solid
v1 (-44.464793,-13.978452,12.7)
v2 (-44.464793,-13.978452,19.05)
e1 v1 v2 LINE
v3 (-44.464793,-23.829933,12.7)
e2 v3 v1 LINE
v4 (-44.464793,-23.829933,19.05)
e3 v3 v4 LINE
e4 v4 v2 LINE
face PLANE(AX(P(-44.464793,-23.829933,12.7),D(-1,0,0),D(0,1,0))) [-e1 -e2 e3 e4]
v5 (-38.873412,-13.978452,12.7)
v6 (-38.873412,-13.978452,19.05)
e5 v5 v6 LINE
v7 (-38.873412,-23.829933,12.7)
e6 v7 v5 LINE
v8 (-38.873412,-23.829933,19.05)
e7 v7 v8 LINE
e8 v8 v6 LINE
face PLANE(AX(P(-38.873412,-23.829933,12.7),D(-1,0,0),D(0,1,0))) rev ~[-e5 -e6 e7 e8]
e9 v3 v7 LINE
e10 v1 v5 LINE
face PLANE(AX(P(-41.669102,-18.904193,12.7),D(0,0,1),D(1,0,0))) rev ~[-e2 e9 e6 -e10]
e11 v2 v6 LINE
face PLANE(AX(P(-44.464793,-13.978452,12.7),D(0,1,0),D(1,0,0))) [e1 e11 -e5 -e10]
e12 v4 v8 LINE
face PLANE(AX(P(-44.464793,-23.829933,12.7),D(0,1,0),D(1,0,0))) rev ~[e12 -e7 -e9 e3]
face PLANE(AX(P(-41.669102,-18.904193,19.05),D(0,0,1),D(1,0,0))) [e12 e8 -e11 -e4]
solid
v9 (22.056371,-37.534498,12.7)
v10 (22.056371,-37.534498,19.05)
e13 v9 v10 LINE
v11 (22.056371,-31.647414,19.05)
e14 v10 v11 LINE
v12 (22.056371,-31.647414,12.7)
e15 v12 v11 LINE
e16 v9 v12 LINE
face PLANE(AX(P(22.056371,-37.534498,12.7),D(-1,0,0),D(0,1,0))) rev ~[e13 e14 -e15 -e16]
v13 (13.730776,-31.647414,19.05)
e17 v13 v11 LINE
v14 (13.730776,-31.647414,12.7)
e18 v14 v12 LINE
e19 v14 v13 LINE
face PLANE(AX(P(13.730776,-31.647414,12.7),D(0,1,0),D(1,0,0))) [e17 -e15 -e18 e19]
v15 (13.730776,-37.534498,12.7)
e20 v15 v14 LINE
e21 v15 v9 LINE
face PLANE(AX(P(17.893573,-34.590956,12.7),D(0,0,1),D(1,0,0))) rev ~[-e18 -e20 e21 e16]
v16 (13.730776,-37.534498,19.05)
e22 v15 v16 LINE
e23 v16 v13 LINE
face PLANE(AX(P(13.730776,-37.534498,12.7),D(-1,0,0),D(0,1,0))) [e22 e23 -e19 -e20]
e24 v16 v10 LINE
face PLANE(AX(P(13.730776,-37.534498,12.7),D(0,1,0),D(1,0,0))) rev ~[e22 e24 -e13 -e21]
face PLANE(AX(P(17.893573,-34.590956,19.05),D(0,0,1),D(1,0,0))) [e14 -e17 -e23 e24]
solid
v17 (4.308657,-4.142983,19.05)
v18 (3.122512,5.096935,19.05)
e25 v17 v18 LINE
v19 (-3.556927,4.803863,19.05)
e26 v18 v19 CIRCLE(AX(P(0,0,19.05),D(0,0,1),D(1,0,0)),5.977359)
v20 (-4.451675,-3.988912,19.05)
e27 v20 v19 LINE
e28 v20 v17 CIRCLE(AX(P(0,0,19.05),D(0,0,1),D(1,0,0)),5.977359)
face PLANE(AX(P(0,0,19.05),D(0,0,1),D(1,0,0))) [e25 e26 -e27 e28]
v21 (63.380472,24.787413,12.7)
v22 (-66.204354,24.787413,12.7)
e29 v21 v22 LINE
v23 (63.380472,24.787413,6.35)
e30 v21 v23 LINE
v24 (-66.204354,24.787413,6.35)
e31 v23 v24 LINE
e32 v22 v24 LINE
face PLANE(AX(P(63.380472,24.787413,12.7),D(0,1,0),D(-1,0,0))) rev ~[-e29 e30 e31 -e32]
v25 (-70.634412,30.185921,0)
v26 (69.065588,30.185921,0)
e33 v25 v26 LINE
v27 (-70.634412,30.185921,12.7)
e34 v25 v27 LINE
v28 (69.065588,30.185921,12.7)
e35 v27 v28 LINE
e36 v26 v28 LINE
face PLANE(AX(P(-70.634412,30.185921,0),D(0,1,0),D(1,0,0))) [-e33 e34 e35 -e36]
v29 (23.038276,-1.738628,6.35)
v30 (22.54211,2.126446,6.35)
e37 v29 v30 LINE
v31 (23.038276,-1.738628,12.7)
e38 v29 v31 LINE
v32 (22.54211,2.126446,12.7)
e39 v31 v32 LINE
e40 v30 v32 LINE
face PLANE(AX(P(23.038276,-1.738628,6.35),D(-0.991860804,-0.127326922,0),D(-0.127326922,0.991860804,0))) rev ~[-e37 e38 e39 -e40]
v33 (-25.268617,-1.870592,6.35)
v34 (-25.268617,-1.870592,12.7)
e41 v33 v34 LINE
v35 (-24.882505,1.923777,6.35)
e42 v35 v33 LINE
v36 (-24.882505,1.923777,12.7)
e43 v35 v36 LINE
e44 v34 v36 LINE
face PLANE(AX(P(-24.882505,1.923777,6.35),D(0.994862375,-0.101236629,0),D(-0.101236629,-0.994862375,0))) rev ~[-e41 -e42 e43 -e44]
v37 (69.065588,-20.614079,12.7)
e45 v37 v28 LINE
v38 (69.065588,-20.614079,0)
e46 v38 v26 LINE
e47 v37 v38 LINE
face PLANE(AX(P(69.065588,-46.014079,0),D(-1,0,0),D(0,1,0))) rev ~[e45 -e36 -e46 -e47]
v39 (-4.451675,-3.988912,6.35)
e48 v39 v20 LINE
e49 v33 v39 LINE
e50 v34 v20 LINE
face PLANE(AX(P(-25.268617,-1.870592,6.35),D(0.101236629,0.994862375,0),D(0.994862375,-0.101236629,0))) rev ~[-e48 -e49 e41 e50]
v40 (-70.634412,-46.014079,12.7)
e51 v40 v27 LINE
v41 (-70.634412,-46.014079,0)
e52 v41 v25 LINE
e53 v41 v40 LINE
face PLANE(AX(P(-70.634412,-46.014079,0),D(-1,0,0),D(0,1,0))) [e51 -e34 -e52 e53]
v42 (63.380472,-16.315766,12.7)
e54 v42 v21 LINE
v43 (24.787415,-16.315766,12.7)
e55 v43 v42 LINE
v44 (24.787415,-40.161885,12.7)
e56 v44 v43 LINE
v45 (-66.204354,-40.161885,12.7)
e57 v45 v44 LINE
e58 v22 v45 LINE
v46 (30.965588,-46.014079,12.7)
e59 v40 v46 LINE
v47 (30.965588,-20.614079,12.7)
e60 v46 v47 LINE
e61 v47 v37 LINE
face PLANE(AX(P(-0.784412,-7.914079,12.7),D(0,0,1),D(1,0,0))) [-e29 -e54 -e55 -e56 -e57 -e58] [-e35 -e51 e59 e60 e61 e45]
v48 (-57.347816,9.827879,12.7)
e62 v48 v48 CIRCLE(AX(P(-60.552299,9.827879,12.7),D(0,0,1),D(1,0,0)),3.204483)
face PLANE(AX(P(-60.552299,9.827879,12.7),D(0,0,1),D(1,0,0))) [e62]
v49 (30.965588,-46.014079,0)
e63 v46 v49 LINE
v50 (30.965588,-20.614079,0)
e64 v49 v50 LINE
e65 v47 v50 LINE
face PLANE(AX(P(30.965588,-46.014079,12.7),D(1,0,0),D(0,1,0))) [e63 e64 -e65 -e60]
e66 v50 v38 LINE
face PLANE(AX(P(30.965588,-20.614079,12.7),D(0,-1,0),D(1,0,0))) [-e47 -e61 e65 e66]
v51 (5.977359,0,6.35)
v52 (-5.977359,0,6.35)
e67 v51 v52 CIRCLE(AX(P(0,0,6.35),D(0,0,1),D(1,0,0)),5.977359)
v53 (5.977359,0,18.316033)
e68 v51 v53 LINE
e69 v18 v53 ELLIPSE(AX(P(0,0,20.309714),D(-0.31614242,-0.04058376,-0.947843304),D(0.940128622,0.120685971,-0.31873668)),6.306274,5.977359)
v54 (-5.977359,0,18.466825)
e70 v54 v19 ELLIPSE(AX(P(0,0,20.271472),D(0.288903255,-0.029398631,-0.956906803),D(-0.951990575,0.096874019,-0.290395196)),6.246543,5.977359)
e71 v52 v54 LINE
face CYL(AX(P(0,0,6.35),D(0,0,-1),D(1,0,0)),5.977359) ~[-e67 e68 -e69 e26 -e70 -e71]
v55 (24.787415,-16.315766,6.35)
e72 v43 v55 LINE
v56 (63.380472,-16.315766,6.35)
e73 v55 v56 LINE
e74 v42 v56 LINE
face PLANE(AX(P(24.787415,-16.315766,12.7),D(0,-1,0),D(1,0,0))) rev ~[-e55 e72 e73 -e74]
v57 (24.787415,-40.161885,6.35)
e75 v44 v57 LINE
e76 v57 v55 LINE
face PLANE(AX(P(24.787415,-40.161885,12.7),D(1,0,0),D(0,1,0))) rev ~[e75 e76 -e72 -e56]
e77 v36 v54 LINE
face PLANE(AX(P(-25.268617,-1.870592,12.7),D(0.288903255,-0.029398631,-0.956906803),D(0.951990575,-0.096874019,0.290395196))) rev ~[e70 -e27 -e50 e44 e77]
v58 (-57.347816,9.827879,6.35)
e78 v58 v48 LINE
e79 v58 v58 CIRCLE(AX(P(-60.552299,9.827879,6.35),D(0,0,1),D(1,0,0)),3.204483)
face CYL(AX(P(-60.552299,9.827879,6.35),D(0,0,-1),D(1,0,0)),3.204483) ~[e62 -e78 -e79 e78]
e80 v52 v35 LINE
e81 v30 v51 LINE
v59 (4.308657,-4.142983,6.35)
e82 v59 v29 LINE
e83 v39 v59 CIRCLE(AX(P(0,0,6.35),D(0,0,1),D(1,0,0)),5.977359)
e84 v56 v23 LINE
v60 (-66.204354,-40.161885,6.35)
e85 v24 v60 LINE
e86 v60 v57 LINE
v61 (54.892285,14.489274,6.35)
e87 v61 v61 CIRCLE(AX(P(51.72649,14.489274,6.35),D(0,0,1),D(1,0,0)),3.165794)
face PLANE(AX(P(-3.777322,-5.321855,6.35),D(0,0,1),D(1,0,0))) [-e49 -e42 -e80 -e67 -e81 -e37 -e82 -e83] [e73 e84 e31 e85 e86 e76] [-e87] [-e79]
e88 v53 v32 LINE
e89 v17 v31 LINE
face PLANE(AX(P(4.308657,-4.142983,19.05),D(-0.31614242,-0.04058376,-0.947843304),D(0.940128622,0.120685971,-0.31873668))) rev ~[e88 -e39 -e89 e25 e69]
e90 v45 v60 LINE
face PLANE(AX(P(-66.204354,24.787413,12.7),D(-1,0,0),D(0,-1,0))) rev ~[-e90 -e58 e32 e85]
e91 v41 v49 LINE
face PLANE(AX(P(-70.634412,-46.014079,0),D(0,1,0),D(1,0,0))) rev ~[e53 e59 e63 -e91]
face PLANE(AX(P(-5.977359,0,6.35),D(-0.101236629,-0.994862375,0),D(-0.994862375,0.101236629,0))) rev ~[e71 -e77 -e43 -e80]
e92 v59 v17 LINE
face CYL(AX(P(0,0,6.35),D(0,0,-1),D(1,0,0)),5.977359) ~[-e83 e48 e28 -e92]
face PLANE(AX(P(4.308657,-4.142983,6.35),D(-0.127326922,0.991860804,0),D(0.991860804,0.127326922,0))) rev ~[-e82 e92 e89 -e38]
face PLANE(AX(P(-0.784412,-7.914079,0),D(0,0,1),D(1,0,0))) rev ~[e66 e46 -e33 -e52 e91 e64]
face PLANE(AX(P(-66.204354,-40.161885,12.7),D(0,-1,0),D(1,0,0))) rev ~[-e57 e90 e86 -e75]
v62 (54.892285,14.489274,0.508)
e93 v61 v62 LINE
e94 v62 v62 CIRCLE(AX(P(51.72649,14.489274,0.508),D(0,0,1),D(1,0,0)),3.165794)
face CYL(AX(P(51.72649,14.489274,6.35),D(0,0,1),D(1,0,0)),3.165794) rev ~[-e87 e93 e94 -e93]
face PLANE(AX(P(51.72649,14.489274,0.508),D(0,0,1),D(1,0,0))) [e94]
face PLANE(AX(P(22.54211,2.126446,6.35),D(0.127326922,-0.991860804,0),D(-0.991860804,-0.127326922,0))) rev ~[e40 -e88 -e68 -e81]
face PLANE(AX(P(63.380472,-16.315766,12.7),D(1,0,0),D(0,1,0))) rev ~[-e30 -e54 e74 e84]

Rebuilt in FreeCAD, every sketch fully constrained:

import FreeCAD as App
import Part
import Sketcher
from FreeCAD import Vector
Q = App.Units.Quantity


def add_polygon(sketch, points):
    """Adds a closed chain of lines whose ends are joined by coincident constraints."""
    first, n = sketch.GeometryCount, len(points)
    for a, b in zip(points, points[1:] + points[:1]):
        sketch.addGeometry(Part.LineSegment(App.Vector(*a, 0), App.Vector(*b, 0)), False)
    for i in range(n):
        sketch.addConstraint(Sketcher.Constraint("Coincident", first + i, 2, first + (i + 1) % n, 1))

doc = App.newDocument("Part")
body = doc.addObject("PartDesign::Body", "Body")

# Sketch on XY plane
sketch1 = body.newObject("Sketcher::SketchObject", "Sketch")
sketch1.AttachmentSupport = (doc.getObject("XY_Plane"), [""])
sketch1.MapMode = "FlatFace"
add_polygon(sketch1, [(-71, 30), (-71, -46), (69, -46), (69, 30)])  # lines 0-3
sketch1.addConstraint(Sketcher.Constraint("Vertical", 0))
sketch1.addConstraint(Sketcher.Constraint("Horizontal", 1))
sketch1.addConstraint(Sketcher.Constraint("Vertical", 2))
sketch1.addConstraint(Sketcher.Constraint("Horizontal", 3))
sketch1.addConstraint(Sketcher.Constraint("DistanceY", 0, 2, 0, 1, Q("3 in")))
sketch1.addConstraint(Sketcher.Constraint("DistanceX", 1, 1, 1, 2, Q("5.5 in")))
sketch1.addConstraint(Sketcher.Constraint("DistanceY", 0, 2, -1, 1, 46.014079))
sketch1.addConstraint(Sketcher.Constraint("DistanceX", 0, 2, -1, 1, 70.634412))
pad1 = body.newObject("PartDesign::Pad", "Pad")
pad1.Profile = sketch1
pad1.Length = Q("0.5 in")

# Sketch on XY plane
sketch2 = body.newObject("Sketcher::SketchObject", "Sketch001")
sketch2.AttachmentSupport = (doc.getObject("XY_Plane"), [""])
sketch2.MapMode = "FlatFace"
sketch2.AttachmentOffset = App.Placement(Vector(0, 0, 0.5 * 25.4), App.Rotation())
add_polygon(sketch2, [(31, -21), (31, -46), (69, -46), (69, -21)])  # lines 0-3
sketch2.addConstraint(Sketcher.Constraint("Vertical", 0))
sketch2.addConstraint(Sketcher.Constraint("Horizontal", 1))
sketch2.addConstraint(Sketcher.Constraint("Vertical", 2))
sketch2.addConstraint(Sketcher.Constraint("Horizontal", 3))
sketch2.addConstraint(Sketcher.Constraint("DistanceY", 0, 2, 0, 1, Q("1 in")))
sketch2.addConstraint(Sketcher.Constraint("DistanceX", 1, 1, 1, 2, Q("1.5 in")))
sketch2.addConstraint(Sketcher.Constraint("DistanceY", 0, 2, -1, 1, 46.014079))
sketch2.addConstraint(Sketcher.Constraint("DistanceX", -1, 1, 0, 2, 30.965588))
pocket1 = body.newObject("PartDesign::Pocket", "Pocket")
pocket1.Profile = sketch2
pocket1.Length = Q("1 in")

# Sketch on XY plane
sketch3 = body.newObject("Sketcher::SketchObject", "Sketch002")
sketch3.AttachmentSupport = (doc.getObject("XY_Plane"), [""])
sketch3.MapMode = "FlatFace"
sketch3.AttachmentOffset = App.Placement(Vector(0, 0, 0.5 * 25.4), App.Rotation())
add_polygon(sketch3, [(-66, 25), (-66, -40), (25, -40), (25, -16), (63, -16), (63, 25)])  # lines 0-5
sketch3.addConstraint(Sketcher.Constraint("Vertical", 0))
sketch3.addConstraint(Sketcher.Constraint("Horizontal", 1))
sketch3.addConstraint(Sketcher.Constraint("Vertical", 2))
sketch3.addConstraint(Sketcher.Constraint("Horizontal", 3))
sketch3.addConstraint(Sketcher.Constraint("Vertical", 4))
sketch3.addConstraint(Sketcher.Constraint("Horizontal", 5))
sketch3.addConstraint(Sketcher.Constraint("DistanceY", 0, 2, 0, 1, 64.949298))
sketch3.addConstraint(Sketcher.Constraint("DistanceX", 1, 1, 1, 2, 90.991769))
sketch3.addConstraint(Sketcher.Constraint("DistanceY", 2, 1, 2, 2, 23.84612))
sketch3.addConstraint(Sketcher.Constraint("DistanceX", 3, 1, 3, 2, 38.593058))
sketch3.addConstraint(Sketcher.Constraint("DistanceX", 0, 2, -1, 1, 66.204354))
sketch3.addConstraint(Sketcher.Constraint("DistanceY", 0, 2, -1, 1, 40.161885))
pocket2 = body.newObject("PartDesign::Pocket", "Pocket001")
pocket2.Profile = sketch3
pocket2.Length = Q("0.25 in")

# Sketch on XY plane
sketch4 = body.newObject("Sketcher::SketchObject", "Sketch003")
sketch4.AttachmentSupport = (doc.getObject("XY_Plane"), [""])
sketch4.MapMode = "FlatFace"
sketch4.AttachmentOffset = App.Placement(Vector(0, 0, 0.25 * 25.4), App.Rotation())
sketch4.addGeometry(Part.Circle(Vector(0, 0, 0), Vector(0, 0, 1), 6), False)
sketch4.addConstraint(Sketcher.Constraint("Coincident", 0, 3, -1, 1))
sketch4.addConstraint(Sketcher.Constraint("Diameter", 0, 11.954719))
pad2 = body.newObject("PartDesign::Pad", "Pad001")
pad2.Profile = sketch4
pad2.Length = Q("0.5 in")

# Sketch on XY plane
sketch5 = body.newObject("Sketcher::SketchObject", "Sketch004")
sketch5.AttachmentSupport = (doc.getObject("XY_Plane"), [""])
sketch5.MapMode = "FlatFace"
sketch5.AttachmentOffset = App.Placement(Vector(0, 0, 0.25 * 25.4), App.Rotation())
add_polygon(sketch5, [(-4.451675, -3.988912), (-5.977359, 0), (-24.882505, 1.923777), (-25.268617, -1.870592)])  # lines 0-3
add_polygon(sketch5, [(22.54211, 2.126446), (5.977359, 0), (4.308657, -4.142983), (23.038276, -1.738628)])  # lines 4-7
sketch5.addConstraint(Sketcher.Constraint("Symmetric", 0, 2, 4, 2, -1, 1))
sketch5.addConstraint(Sketcher.Constraint("PointOnObject", 0, 2, -1))
sketch5.addConstraint(Sketcher.Constraint("Perpendicular", 1, 2))
sketch5.addConstraint(Sketcher.Constraint("Perpendicular", 2, 3))
sketch5.addConstraint(Sketcher.Constraint("Parallel", 4, 6))
sketch5.addConstraint(Sketcher.Constraint("Perpendicular", 6, 7))
sketch5.addConstraint(Sketcher.Constraint("Distance", 0, 4.27073))
sketch5.addConstraint(Sketcher.Constraint("Distance", 4, 16.70068))
sketch5.addConstraint(Sketcher.Constraint("Distance", 7, 3.896791))
sketch5.addConstraint(Sketcher.Constraint("DistanceX", 0, 2, -1, 1, 5.977359))
sketch5.addConstraint(Sketcher.Constraint("DistanceY", 2, 2, -1, 1, 1.870592))
sketch5.addConstraint(Sketcher.Constraint("DistanceY", 3, 2, -1, 1, 3.988912))
sketch5.addConstraint(Sketcher.Constraint("DistanceY", 6, 2, -1, 1, 1.738628))
sketch5.addConstraint(Sketcher.Constraint("DistanceY", 2, 2, 1, 2, 3.794368))
sketch5.addConstraint(Sketcher.Constraint("DistanceX", 3, 2, 5, 2, 8.760331))
pad3 = body.newObject("PartDesign::Pad", "Pad002")
pad3.Profile = sketch5
pad3.Length = Q("0.5 in")

# Sketch on XY plane
sketch6 = body.newObject("Sketcher::SketchObject", "Sketch005")
sketch6.AttachmentSupport = (doc.getObject("XY_Plane"), [""])
sketch6.MapMode = "FlatFace"
sketch6.AttachmentOffset = App.Placement(Vector(0, 0, 0.25 * 25.4), App.Rotation())
sketch6.addGeometry(Part.Circle(Vector(51.7, 14.5, 0), Vector(0, 0, 1), 3.2), False)
sketch6.addConstraint(Sketcher.Constraint("Diameter", 0, 6.331589))
sketch6.addConstraint(Sketcher.Constraint("DistanceX", -1, 1, 0, 3, 51.72649))
sketch6.addConstraint(Sketcher.Constraint("DistanceY", -1, 1, 0, 3, 14.489274))
pocket3 = body.newObject("PartDesign::Pocket", "Pocket002")
pocket3.Profile = sketch6
pocket3.Length = Q("0.23 in")

# Sketch on XY plane
sketch7 = body.newObject("Sketcher::SketchObject", "Sketch006")
sketch7.AttachmentSupport = (doc.getObject("XY_Plane"), [""])
sketch7.MapMode = "FlatFace"
sketch7.AttachmentOffset = App.Placement(Vector(0, 0, 0.25 * 25.4), App.Rotation())
sketch7.addGeometry(Part.Circle(Vector(-60.6, 9.8, 0), Vector(0, 0, 1), 3.2), False)
sketch7.addConstraint(Sketcher.Constraint("Diameter", 0, 6.408966))
sketch7.addConstraint(Sketcher.Constraint("DistanceX", 0, 3, -1, 1, 60.552299))
sketch7.addConstraint(Sketcher.Constraint("DistanceY", -1, 1, 0, 3, 9.827879))
pad4 = body.newObject("PartDesign::Pad", "Pad003")
pad4.Profile = sketch7
pad4.Length = Q("0.25 in")

# Sketch on an angled plane
sketch8 = body.newObject("Sketcher::SketchObject", "Sketch007")
sketch8.Placement = App.Placement(Vector(-0.447374, -4.396387, 0), App.Rotation(Vector(0.994862375, -0.101236629, 0), Vector(0, 0, 1), Vector(-0.101236629, -0.994862375, 0), "ZXY"))
add_polygon(sketch8, [(-25, 13), (-4, 19), (-25, 19)])  # lines 0-2
sketch8.addConstraint(Sketcher.Constraint("Horizontal", 1))
sketch8.addConstraint(Sketcher.Constraint("Vertical", 2))
sketch8.addConstraint(Sketcher.Constraint("DistanceY", 2, 2, 2, 1, Q("0.25 in")))
sketch8.addConstraint(Sketcher.Constraint("DistanceY", -1, 1, 2, 2, Q("0.5 in")))
sketch8.addConstraint(Sketcher.Constraint("DistanceX", 1, 2, 1, 1, 20.924445))
sketch8.addConstraint(Sketcher.Constraint("DistanceX", 0, 2, -1, 1, 4.02498))
pocket4 = body.newObject("PartDesign::Pocket", "Pocket003")
pocket4.Profile = sketch8
pocket4.Length = Q("1 in")

# Sketch on an angled plane
sketch9 = body.newObject("Sketcher::SketchObject", "Sketch008")
sketch9.Placement = App.Placement(Vector(0.593072, -4.619959, 0), App.Rotation(Vector(0.991860804, 0.127326922, 0), Vector(0, 0, 1), Vector(0.127326922, -0.991860804, 0), "ZXY"))
add_polygon(sketch9, [(23, 19), (4, 19), (23, 13)])  # lines 0-2
sketch9.addConstraint(Sketcher.Constraint("Horizontal", 0))
sketch9.addConstraint(Sketcher.Constraint("Vertical", 2))
sketch9.addConstraint(Sketcher.Constraint("DistanceY", 2, 1, 2, 2, Q("0.25 in")))
sketch9.addConstraint(Sketcher.Constraint("DistanceY", -1, 1, 1, 2, Q("0.5 in")))
sketch9.addConstraint(Sketcher.Constraint("Distance", 1, 19.922401))
sketch9.addConstraint(Sketcher.Constraint("DistanceX", -1, 1, 1, 2, 22.629389))
pocket5 = body.newObject("PartDesign::Pocket", "Pocket004")
pocket5.Profile = sketch9
pocket5.Length = Q("1 in")
body2 = doc.addObject("PartDesign::Body", "Body001")

# Sketch on XY plane
sketch10 = body2.newObject("Sketcher::SketchObject", "Sketch009")
sketch10.AttachmentSupport = (doc.getObject("XY_Plane001"), [""])
sketch10.MapMode = "FlatFace"
sketch10.AttachmentOffset = App.Placement(Vector(0, 0, 0.5 * 25.4), App.Rotation())
add_polygon(sketch10, [(14, -32), (14, -38), (22, -38), (22, -32)])  # lines 0-3
sketch10.addConstraint(Sketcher.Constraint("Vertical", 0))
sketch10.addConstraint(Sketcher.Constraint("Horizontal", 1))
sketch10.addConstraint(Sketcher.Constraint("Vertical", 2))
sketch10.addConstraint(Sketcher.Constraint("Horizontal", 3))
sketch10.addConstraint(Sketcher.Constraint("DistanceX", 1, 1, 1, 2, 8.325595))
sketch10.addConstraint(Sketcher.Constraint("DistanceY", 0, 2, 0, 1, 5.887084))
sketch10.addConstraint(Sketcher.Constraint("DistanceX", -1, 1, 1, 2, 22.056371))
sketch10.addConstraint(Sketcher.Constraint("DistanceY", 0, 2, -1, 1, 37.534498))
pad5 = body2.newObject("PartDesign::Pad", "Pad004")
pad5.Profile = sketch10
pad5.Length = Q("0.25 in")
body3 = doc.addObject("PartDesign::Body", "Body002")

# Sketch on XY plane
sketch11 = body3.newObject("Sketcher::SketchObject", "Sketch010")
sketch11.AttachmentSupport = (doc.getObject("XY_Plane002"), [""])
sketch11.MapMode = "FlatFace"
sketch11.AttachmentOffset = App.Placement(Vector(0, 0, 0.5 * 25.4), App.Rotation())
add_polygon(sketch11, [(-44, -14), (-44, -24), (-39, -24), (-39, -14)])  # lines 0-3
sketch11.addConstraint(Sketcher.Constraint("Vertical", 0))
sketch11.addConstraint(Sketcher.Constraint("Horizontal", 1))
sketch11.addConstraint(Sketcher.Constraint("Vertical", 2))
sketch11.addConstraint(Sketcher.Constraint("Horizontal", 3))
sketch11.addConstraint(Sketcher.Constraint("DistanceX", 1, 1, 1, 2, 5.591381))
sketch11.addConstraint(Sketcher.Constraint("DistanceY", 0, 2, 0, 1, 9.851481))
sketch11.addConstraint(Sketcher.Constraint("DistanceX", 1, 2, -1, 1, 38.873412))
sketch11.addConstraint(Sketcher.Constraint("DistanceY", 0, 2, -1, 1, 23.829933))
pad6 = body3.newObject("PartDesign::Pad", "Pad005")
pad6.Profile = sketch11
pad6.Length = Q("0.25 in")

doc.recompute()
